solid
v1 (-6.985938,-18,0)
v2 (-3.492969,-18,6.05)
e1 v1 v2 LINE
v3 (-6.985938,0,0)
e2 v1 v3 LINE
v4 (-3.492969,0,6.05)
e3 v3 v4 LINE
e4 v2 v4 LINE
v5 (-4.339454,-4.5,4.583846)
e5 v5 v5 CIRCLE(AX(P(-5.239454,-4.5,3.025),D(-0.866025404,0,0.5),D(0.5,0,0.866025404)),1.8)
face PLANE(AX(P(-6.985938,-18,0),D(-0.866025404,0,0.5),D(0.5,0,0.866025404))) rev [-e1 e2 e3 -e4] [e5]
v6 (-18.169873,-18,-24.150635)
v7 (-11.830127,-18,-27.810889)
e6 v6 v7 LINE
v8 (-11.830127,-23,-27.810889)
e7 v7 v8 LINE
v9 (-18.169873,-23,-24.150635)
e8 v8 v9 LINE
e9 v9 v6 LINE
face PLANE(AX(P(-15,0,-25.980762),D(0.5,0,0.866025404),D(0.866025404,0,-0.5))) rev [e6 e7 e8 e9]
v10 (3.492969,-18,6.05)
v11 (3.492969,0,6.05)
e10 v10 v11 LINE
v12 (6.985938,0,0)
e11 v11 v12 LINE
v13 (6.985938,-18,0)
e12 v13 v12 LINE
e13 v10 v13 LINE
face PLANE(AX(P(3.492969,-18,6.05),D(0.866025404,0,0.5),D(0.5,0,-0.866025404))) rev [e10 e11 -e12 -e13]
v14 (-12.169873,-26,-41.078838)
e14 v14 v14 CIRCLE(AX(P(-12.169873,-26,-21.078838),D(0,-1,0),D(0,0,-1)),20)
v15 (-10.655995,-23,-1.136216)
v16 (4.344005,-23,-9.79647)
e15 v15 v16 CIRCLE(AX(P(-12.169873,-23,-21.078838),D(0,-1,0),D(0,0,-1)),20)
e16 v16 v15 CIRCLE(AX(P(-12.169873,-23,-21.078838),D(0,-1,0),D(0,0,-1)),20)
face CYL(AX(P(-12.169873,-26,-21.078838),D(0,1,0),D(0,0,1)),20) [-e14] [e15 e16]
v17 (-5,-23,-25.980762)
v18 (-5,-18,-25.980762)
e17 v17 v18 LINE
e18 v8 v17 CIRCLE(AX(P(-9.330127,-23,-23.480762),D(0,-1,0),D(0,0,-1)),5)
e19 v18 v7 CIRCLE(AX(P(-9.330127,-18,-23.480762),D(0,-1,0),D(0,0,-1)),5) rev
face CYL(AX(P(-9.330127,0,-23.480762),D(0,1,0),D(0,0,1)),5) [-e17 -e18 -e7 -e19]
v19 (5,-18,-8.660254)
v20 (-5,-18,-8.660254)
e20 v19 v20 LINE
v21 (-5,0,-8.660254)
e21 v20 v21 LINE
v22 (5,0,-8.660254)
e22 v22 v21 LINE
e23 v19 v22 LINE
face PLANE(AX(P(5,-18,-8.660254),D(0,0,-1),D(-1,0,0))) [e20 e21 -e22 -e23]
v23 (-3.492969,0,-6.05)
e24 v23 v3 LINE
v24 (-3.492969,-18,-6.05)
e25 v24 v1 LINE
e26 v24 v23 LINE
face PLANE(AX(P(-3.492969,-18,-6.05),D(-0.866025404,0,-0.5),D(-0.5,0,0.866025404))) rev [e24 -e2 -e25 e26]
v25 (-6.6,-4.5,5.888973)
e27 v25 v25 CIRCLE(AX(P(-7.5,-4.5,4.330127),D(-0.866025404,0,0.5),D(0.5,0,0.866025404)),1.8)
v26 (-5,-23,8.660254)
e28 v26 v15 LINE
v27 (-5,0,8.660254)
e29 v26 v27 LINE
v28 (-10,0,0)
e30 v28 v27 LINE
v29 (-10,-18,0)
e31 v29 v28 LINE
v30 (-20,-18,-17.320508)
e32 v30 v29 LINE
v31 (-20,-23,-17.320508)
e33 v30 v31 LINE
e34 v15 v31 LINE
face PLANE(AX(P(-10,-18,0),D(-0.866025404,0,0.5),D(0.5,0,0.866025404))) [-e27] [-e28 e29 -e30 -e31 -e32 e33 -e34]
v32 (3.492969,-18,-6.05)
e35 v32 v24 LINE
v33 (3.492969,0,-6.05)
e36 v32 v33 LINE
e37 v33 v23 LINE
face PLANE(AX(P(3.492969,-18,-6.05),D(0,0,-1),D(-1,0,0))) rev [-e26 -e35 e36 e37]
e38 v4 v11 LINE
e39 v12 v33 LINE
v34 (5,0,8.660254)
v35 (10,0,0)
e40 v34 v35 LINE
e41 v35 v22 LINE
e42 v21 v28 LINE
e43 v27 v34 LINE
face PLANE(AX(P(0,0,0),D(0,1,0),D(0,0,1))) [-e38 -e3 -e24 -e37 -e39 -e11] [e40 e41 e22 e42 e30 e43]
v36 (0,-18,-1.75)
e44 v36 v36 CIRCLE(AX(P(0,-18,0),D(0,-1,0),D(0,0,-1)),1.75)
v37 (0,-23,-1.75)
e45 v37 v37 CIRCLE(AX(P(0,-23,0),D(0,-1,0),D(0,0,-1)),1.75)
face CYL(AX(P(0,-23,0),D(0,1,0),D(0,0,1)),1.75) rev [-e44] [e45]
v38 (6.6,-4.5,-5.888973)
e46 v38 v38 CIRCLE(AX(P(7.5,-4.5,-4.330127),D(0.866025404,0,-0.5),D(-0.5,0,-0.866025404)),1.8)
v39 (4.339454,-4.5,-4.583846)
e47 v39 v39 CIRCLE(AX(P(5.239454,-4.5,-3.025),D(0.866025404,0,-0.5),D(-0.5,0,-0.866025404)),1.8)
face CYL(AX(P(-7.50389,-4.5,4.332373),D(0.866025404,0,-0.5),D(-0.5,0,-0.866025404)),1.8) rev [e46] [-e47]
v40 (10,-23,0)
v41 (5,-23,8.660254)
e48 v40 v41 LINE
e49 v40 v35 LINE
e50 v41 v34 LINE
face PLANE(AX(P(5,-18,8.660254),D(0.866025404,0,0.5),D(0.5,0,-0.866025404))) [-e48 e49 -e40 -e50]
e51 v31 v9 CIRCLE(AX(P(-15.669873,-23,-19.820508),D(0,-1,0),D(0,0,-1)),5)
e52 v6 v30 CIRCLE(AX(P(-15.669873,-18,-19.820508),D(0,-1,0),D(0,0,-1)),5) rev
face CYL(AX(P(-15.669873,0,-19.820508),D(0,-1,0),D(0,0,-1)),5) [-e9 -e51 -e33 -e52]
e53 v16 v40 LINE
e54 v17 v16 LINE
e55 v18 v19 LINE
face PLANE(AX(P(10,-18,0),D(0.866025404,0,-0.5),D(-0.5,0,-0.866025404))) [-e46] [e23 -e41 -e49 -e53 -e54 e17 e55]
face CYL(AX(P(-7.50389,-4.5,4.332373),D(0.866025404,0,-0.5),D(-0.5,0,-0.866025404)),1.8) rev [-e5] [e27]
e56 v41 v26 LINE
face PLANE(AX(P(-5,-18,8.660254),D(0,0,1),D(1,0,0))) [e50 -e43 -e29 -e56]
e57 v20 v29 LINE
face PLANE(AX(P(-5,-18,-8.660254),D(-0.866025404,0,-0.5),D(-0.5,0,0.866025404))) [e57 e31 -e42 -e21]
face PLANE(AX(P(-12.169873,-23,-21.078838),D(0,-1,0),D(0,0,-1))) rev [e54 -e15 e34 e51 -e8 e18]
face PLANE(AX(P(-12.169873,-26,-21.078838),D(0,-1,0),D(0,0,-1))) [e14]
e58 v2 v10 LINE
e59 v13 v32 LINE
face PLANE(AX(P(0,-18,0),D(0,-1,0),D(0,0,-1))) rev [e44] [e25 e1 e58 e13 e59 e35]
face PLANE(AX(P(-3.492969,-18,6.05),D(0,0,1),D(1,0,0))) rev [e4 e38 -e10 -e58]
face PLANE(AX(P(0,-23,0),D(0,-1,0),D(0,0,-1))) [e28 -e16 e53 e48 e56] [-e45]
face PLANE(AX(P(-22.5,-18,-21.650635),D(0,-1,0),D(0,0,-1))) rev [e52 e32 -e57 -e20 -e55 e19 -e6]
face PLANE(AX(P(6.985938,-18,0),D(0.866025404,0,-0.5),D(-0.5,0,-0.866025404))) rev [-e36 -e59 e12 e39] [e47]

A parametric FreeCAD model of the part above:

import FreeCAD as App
import Part
import Sketcher
from FreeCAD import Vector
Q = App.Units.Quantity


def edges_at(feature, points):
    """Names of the edges that pass closest to the given points."""
    edges = feature.Shape.Edges
    near = lambda p: min(range(len(edges)), key=lambda i: edges[i].distToShape(Part.Vertex(*p))[0])
    return sorted({f"Edge{near(p) + 1}" for p in points})


def add_polygon(sketch, points):
    """Adds a closed chain of lines whose ends are joined by coincident constraints."""
    first, n = sketch.GeometryCount, len(points)
    for a, b in zip(points, points[1:] + points[:1]):
        sketch.addGeometry(Part.LineSegment(App.Vector(*a, 0), App.Vector(*b, 0)), False)
    for i in range(n):
        sketch.addConstraint(Sketcher.Constraint("Coincident", first + i, 2, first + (i + 1) % n, 1))

doc = App.newDocument("Part")
body = doc.addObject("PartDesign::Body", "Body")

# Sketch on XZ plane
sketch1 = body.newObject("Sketcher::SketchObject", "Sketch")
sketch1.AttachmentSupport = (doc.getObject("XZ_Plane"), [""])
sketch1.MapMode = "FlatFace"
add_polygon(sketch1, [(10, 0), (5, -9), (-5, -9), (-10, 0), (-5, 9), (5, 9)])  # lines 0-5
add_polygon(sketch1, [(3, -6), (7, 0), (3, 6), (-3, 6), (-7, 0), (-3, -6)])  # lines 6-11
sketch1.addConstraint([
    Sketcher.Constraint("Horizontal", 1),
    Sketcher.Constraint("Horizontal", 4),
    Sketcher.Constraint("Horizontal", 8),
    Sketcher.Constraint("Horizontal", 11),
    Sketcher.Constraint("Symmetric", 0, 2, 3, 2, -1, 1),
    Sketcher.Constraint("Symmetric", 2, 2, 5, 2, -1, 1),
    Sketcher.Constraint("Symmetric", 6, 2, 9, 2, -1, 1),
    Sketcher.Constraint("Symmetric", 7, 2, 10, 2, -1, 1),
    Sketcher.Constraint("PointOnObject", 2, 2, -1),
    Sketcher.Constraint("PointOnObject", 6, 2, -1),
    Sketcher.Constraint("Parallel", 2, 5),
    Sketcher.Constraint("Parallel", 3, 6),
    Sketcher.Constraint("Parallel", 5, 7),
    Sketcher.Constraint("Parallel", 6, 9),
    Sketcher.Constraint("Vertical", 1, 2, 3, 2),
    Sketcher.Constraint("DistanceX", 1, 2, 1, 1, Q("10 mm")),
    Sketcher.Constraint("Angle", 0, Q("-120 deg")),
    Sketcher.Constraint("Distance", 0, Q("10 mm")),
    Sketcher.Constraint("DistanceY", 10, 2, 8, 2, Q("12.1 mm")),
    Sketcher.Constraint("DistanceX", 8, 2, 8, 1, Q("6.985938 mm")),
])
pad1 = body.newObject("PartDesign::Pad", "Pad")
pad1.Profile = sketch1
pad1.Length = 18

# Sketch on an angled plane
sketch2 = body.newObject("Sketcher::SketchObject", "Sketch001")
sketch2.Placement = App.Placement(Vector(7.5, 0, -4.330127), App.Rotation(Vector(-0.5, 0, -0.866025404), Vector(0, 1, 0), Vector(0.866025404, 0, -0.5), "ZXY"))
sketch2.addGeometry(Part.Circle(Vector(0, -4.5, 0), Vector(0, 0, 1), 1.8), False)
sketch2.addConstraint([
    Sketcher.Constraint("PointOnObject", 0, 3, -2),
    Sketcher.Constraint("Diameter", 0, Q("3.6 mm")),
    Sketcher.Constraint("DistanceY", 0, 3, -1, 1, Q("4.5 mm")),
])
pocket1 = body.newObject("PartDesign::Pocket", "Pocket")
pocket1.Profile = sketch2
pocket1.Length = 17.325

# Sketch on XZ plane
sketch3 = body.newObject("Sketcher::SketchObject", "Sketch002")
sketch3.AttachmentSupport = (doc.getObject("XZ_Plane"), [""])
sketch3.MapMode = "FlatFace"
sketch3.AttachmentOffset = App.Placement(Vector(0, 0, 18), App.Rotation())
add_polygon(sketch3, [(-10, 0), (5, -8.7), (10, 0), (5, 8.7), (-5, 8.7)])  # lines 0-4
sketch3.addGeometry(Part.Circle(Vector(0, 0, 0), Vector(0, 0, 1), 1.8), False)  # 5
sketch3.addConstraint([
    Sketcher.Constraint("Horizontal", 3),
    Sketcher.Constraint("Coincident", 5, 3, -1, 1),
    Sketcher.Constraint("Symmetric", 0, 2, 3, 2, -1, 1),
    Sketcher.Constraint("Symmetric", 1, 2, 4, 2, -1, 1),
    Sketcher.Constraint("PointOnObject", 1, 2, -1),
    Sketcher.Constraint("Perpendicular", 0, 1),
    Sketcher.Constraint("Vertical", 0, 2, 2, 2),
    Sketcher.Constraint("Diameter", 5, Q("3.5 mm")),
    Sketcher.Constraint("DistanceX", 3, 2, 3, 1, Q("10 mm")),
    Sketcher.Constraint("Angle", 0, Q("-30 deg")),
])
pad2 = body.newObject("PartDesign::Pad", "Pad001")
pad2.Profile = sketch3
pad2.Length = 5

# Sketch on an angled plane
sketch4 = body.newObject("Sketcher::SketchObject", "Sketch003")
sketch4.Placement = App.Placement(Vector(-2.5, 0, -4.330127), App.Rotation(Vector(-0.866025404, 0, 0.5), Vector(0, 1, 0), Vector(-0.5, 0, -0.866025404), "ZXY"))
add_polygon(sketch4, [(-9, -18), (-9, -23), (9, -23), (9, -18)])  # lines 0-3
sketch4.addConstraint([
    Sketcher.Constraint("Vertical", 0),
    Sketcher.Constraint("Horizontal", 1),
    Sketcher.Constraint("Vertical", 2),
    Sketcher.Constraint("Horizontal", 3),
    Sketcher.Constraint("DistanceY", 0, 2, 0, 1, Q("5 mm")),
    Sketcher.Constraint("DistanceY", 0, 2, -1, 1, Q("23 mm")),
    Sketcher.Constraint("DistanceX", 1, 1, 1, 2, Q("17.320508 mm")),
    Sketcher.Constraint("DistanceX", 0, 2, -1, 1, Q("8.660254 mm")),
])
pad3 = body.newObject("PartDesign::Pad", "Pad002")
pad3.Profile = sketch4
pad3.Length = 25
doc.recompute()

fillet = body.newObject("PartDesign::Fillet", "Fillet")
fillet.Base = (pad3, edges_at(pad3, [(-7.5, -20.5, -30.311)]))
fillet.Radius = 5
doc.recompute()

fillet2 = body.newObject("PartDesign::Fillet", "Fillet001")
fillet2.Base = (fillet, edges_at(fillet, [(-22.5, -20.5, -21.651)]))
fillet2.Radius = 5

# Sketch on XZ plane
sketch5 = body.newObject("Sketcher::SketchObject", "Sketch004")
sketch5.AttachmentSupport = (doc.getObject("XZ_Plane"), [""])
sketch5.MapMode = "FlatFace"
sketch5.AttachmentOffset = App.Placement(Vector(0, 0, 23), App.Rotation())
sketch5.addGeometry(Part.Circle(Vector(-12, -21, 0), Vector(0, 0, 1), 20), False)
sketch5.addConstraint([
    Sketcher.Constraint("Diameter", 0, Q("40 mm")),
    Sketcher.Constraint("DistanceY", 0, 3, -1, 1, Q("21.078838 mm")),
    Sketcher.Constraint("DistanceX", 0, 3, -1, 1, Q("12.169873 mm")),
])
pad4 = body.newObject("PartDesign::Pad", "Pad003")
pad4.Profile = sketch5
pad4.Length = 3

doc.recompute()
